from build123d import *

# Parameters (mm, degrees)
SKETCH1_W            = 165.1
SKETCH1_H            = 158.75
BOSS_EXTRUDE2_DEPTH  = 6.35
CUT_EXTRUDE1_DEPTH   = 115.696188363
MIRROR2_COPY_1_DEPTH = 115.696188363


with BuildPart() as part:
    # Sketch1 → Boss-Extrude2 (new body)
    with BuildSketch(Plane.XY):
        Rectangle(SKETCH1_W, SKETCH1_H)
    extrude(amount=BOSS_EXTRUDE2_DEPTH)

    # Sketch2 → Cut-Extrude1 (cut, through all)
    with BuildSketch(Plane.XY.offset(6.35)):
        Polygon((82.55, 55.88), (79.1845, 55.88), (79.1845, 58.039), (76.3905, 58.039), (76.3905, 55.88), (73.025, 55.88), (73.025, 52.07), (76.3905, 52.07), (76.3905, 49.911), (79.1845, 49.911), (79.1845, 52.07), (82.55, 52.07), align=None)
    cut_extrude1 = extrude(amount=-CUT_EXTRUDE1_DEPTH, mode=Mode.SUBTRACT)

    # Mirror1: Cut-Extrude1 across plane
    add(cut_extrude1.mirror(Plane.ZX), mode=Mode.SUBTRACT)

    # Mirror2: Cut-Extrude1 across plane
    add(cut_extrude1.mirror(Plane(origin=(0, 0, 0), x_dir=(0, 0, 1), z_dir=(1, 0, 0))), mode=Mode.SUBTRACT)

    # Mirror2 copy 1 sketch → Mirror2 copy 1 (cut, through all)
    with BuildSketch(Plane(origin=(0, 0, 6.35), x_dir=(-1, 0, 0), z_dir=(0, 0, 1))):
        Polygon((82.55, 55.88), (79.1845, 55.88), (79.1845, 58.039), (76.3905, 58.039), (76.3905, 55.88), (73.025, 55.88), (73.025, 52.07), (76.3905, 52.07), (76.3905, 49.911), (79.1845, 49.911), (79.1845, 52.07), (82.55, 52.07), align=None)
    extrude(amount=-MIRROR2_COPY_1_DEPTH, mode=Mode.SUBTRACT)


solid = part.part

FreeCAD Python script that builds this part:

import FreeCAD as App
import Part
import Sketcher
from FreeCAD import Vector
Q = App.Units.Quantity


def add_polygon(sketch, points):
    """Adds a closed chain of lines whose ends are joined by coincident constraints."""
    first, n = sketch.GeometryCount, len(points)
    for a, b in zip(points, points[1:] + points[:1]):
        sketch.addGeometry(Part.LineSegment(App.Vector(*a, 0), App.Vector(*b, 0)), False)
    for i in range(n):
        sketch.addConstraint(Sketcher.Constraint("Coincident", first + i, 2, first + (i + 1) % n, 1))

doc = App.newDocument("Part")
body = doc.addObject("PartDesign::Body", "Body")

# Sketch on XY plane
sketch1 = body.newObject("Sketcher::SketchObject", "Sketch")
sketch1.AttachmentSupport = (doc.getObject("XY_Plane"), [""])
sketch1.MapMode = "FlatFace"
add_polygon(sketch1, [(-83, 79), (-83, -79), (83, -79), (83, 79)])  # lines 0-3
sketch1.addConstraint([
    Sketcher.Constraint("Vertical", 0),
    Sketcher.Constraint("Horizontal", 1),
    Sketcher.Constraint("Vertical", 2),
    Sketcher.Constraint("Horizontal", 3),
    Sketcher.Constraint("Symmetric", 0, 2, 2, 2, -1, 1),
    Sketcher.Constraint("DistanceX", 1, 1, 1, 2, Q("6.5 in")),
    Sketcher.Constraint("DistanceY", 0, 2, 0, 1, Q("6.25 in")),
])
pad1 = body.newObject("PartDesign::Pad", "Pad")
pad1.Profile = sketch1
pad1.Length = Q("0.25 in")

# Sketch on XY plane
sketch2 = body.newObject("Sketcher::SketchObject", "Sketch001")
sketch2.AttachmentSupport = (doc.getObject("XY_Plane"), [""])
sketch2.MapMode = "FlatFace"
sketch2.AttachmentOffset = App.Placement(Vector(0, 0, 0.25 * 25.4), App.Rotation())
add_polygon(sketch2, [(82.5, 55.9), (79.2, 55.9), (79.2, 58), (76.4, 58), (76.4, 55.9), (73, 55.9), (73, 52.1), (76.4, 52.1), (76.4, 49.9), (79.2, 49.9), (79.2, 52.1), (82.5, 52.1)])  # lines 0-11
sketch2.addConstraint([
    Sketcher.Constraint("Horizontal", 0),
    Sketcher.Constraint("Vertical", 1),
    Sketcher.Constraint("Horizontal", 2),
    Sketcher.Constraint("Vertical", 3),
    Sketcher.Constraint("Horizontal", 4),
    Sketcher.Constraint("Vertical", 5),
    Sketcher.Constraint("Horizontal", 6),
    Sketcher.Constraint("Vertical", 7),
    Sketcher.Constraint("Horizontal", 8),
    Sketcher.Constraint("Vertical", 9),
    Sketcher.Constraint("Horizontal", 10),
    Sketcher.Constraint("Vertical", 11),
    Sketcher.Constraint("Horizontal", 0, 2, 3, 2),
    Sketcher.Constraint("Horizontal", 6, 2, 9, 2),
    Sketcher.Constraint("Vertical", 3, 2, 6, 2),
    Sketcher.Constraint("Vertical", 1, 2, 8, 2),
    Sketcher.Constraint("Equal", 0, 4),
    Sketcher.Constraint("Equal", 3, 7),
    Sketcher.Constraint("DistanceX", 2, 2, 2, 1, Q("0.11 in")),
    Sketcher.Constraint("DistanceY", 5, 2, 5, 1, Q("0.15 in")),
    Sketcher.Constraint("DistanceY", -1, 1, 0, 2, Q("2.2 in")),
    Sketcher.Constraint("DistanceY", 1, 1, 1, 2, Q("0.085 in")),
    Sketcher.Constraint("DistanceX", -1, 1, 10, 2, Q("3.25 in")),
    Sketcher.Constraint("DistanceX", 0, 2, 0, 1, Q("0.1325 in")),
])
pocket1 = body.newObject("PartDesign::Pocket", "Pocket")
pocket1.Profile = sketch2
pocket1.Type = "ThroughAll"
doc.recompute()

mirrored = body.newObject("PartDesign::Mirrored", "Mirrored")
mirrored.Originals = [pocket1]
mirrored.MirrorPlane = (doc.getObject("XZ_Plane"), [""])
body.Tip = mirrored
doc.recompute()

mirrored2 = body.newObject("PartDesign::Mirrored", "Mirrored001")
mirrored2.Originals = [pocket1]
mirrored2.MirrorPlane = (doc.getObject("YZ_Plane"), [""])
body.Tip = mirrored2

# Sketch on XY plane
sketch3 = body.newObject("Sketcher::SketchObject", "Sketch002")
sketch3.AttachmentSupport = (doc.getObject("XY_Plane"), [""])
sketch3.MapMode = "FlatFace"
sketch3.AttachmentOffset = App.Placement(Vector(0, 0, 0.25 * 25.4), App.Rotation())
add_polygon(sketch3, [(-82.5, -55.9), (-79.2, -55.9), (-79.2, -58), (-76.4, -58), (-76.4, -55.9), (-73, -55.9), (-73, -52.1), (-76.4, -52.1), (-76.4, -49.9), (-79.2, -49.9), (-79.2, -52.1), (-82.5, -52.1)])  # lines 0-11
sketch3.addConstraint([
    Sketcher.Constraint("Horizontal", 0),
    Sketcher.Constraint("Vertical", 1),
    Sketcher.Constraint("Horizontal", 2),
    Sketcher.Constraint("Vertical", 3),
    Sketcher.Constraint("Horizontal", 4),
    Sketcher.Constraint("Vertical", 5),
    Sketcher.Constraint("Horizontal", 6),
    Sketcher.Constraint("Vertical", 7),
    Sketcher.Constraint("Horizontal", 8),
    Sketcher.Constraint("Vertical", 9),
    Sketcher.Constraint("Horizontal", 10),
    Sketcher.Constraint("Vertical", 11),
    Sketcher.Constraint("Horizontal", 0, 2, 3, 2),
    Sketcher.Constraint("Horizontal", 6, 2, 9, 2),
    Sketcher.Constraint("Vertical", 3, 2, 6, 2),
    Sketcher.Constraint("Vertical", 1, 2, 8, 2),
    Sketcher.Constraint("Equal", 0, 4),
    Sketcher.Constraint("Equal", 3, 7),
    Sketcher.Constraint("DistanceX", 2, 1, 2, 2, Q("0.11 in")),
    Sketcher.Constraint("DistanceY", 5, 1, 5, 2, Q("0.15 in")),
    Sketcher.Constraint("DistanceY", 0, 2, -1, 1, Q("2.2 in")),
    Sketcher.Constraint("DistanceY", 1, 2, 1, 1, Q("0.085 in")),
    Sketcher.Constraint("DistanceX", 10, 2, -1, 1, Q("3.25 in")),
    Sketcher.Constraint("DistanceX", 0, 1, 0, 2, Q("0.1325 in")),
])
pocket2 = body.newObject("PartDesign::Pocket", "Pocket001")
pocket2.Profile = sketch3
pocket2.Type = "ThroughAll"

doc.recompute()
